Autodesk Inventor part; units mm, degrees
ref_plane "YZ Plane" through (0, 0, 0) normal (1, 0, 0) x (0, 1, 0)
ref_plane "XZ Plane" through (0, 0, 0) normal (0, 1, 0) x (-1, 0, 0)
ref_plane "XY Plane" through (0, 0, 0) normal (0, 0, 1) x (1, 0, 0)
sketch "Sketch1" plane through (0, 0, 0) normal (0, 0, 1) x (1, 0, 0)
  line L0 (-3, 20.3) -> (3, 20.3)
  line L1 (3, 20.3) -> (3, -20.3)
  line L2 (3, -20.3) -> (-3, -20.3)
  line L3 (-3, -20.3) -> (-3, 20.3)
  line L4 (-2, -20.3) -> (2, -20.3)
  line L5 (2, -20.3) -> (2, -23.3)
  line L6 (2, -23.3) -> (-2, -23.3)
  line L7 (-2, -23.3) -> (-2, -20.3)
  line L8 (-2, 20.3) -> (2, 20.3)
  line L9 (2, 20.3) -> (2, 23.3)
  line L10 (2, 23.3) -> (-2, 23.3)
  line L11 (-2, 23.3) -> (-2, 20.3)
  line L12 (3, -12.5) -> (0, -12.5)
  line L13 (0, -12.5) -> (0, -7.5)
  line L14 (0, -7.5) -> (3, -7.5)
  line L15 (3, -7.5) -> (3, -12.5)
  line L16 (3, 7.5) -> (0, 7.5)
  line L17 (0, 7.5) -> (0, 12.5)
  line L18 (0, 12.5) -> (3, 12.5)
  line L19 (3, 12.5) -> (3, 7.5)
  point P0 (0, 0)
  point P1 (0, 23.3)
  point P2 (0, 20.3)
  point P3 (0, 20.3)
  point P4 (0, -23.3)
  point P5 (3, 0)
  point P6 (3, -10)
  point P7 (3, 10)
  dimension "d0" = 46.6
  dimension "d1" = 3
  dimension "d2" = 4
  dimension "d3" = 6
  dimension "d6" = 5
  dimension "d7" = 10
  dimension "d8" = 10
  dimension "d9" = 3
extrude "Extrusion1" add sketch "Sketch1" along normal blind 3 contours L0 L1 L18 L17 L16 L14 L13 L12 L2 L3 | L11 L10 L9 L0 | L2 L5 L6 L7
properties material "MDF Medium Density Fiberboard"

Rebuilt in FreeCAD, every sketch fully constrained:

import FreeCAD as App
import Part
import Sketcher

V = App.Vector

doc = App.newDocument("Part")
body = doc.addObject("PartDesign::Body", "Body")

# Sketch on XY plane
sketch1 = doc.addObject("Sketcher::SketchObject", "Sketch")
body.addObject(sketch1)
sketch1.AttachmentSupport = (doc.XY_Plane, [""])
sketch1.MapMode = "FlatFace"
sketch1.addGeometry([
    Part.LineSegment(V(-2, 20.3, 0), V(-3, 20.3, 0)),  # 0
    Part.LineSegment(V(-3, 20.3, 0), V(-3, -20.3, 0)),  # 1
    Part.LineSegment(V(-3, -20.3, 0), V(-2, -20.3, 0)),  # 2
    Part.LineSegment(V(-2, -20.3, 0), V(-2, -23.3, 0)),  # 3
    Part.LineSegment(V(-2, -23.3, 0), V(2, -23.3, 0)),  # 4
    Part.LineSegment(V(2, -23.3, 0), V(2, -20.3, 0)),  # 5
    Part.LineSegment(V(2, -20.3, 0), V(3, -20.3, 0)),  # 6
    Part.LineSegment(V(3, -20.3, 0), V(3, -12.5, 0)),  # 7
    Part.LineSegment(V(3, -12.5, 0), V(0, -12.5, 0)),  # 8
    Part.LineSegment(V(0, -12.5, 0), V(0, -7.5, 0)),  # 9
    Part.LineSegment(V(0, -7.5, 0), V(3, -7.5, 0)),  # 10
    Part.LineSegment(V(3, -7.5, 0), V(3, 7.5, 0)),  # 11
    Part.LineSegment(V(3, 7.5, 0), V(0, 7.5, 0)),  # 12
    Part.LineSegment(V(0, 7.5, 0), V(0, 12.5, 0)),  # 13
    Part.LineSegment(V(0, 12.5, 0), V(3, 12.5, 0)),  # 14
    Part.LineSegment(V(3, 12.5, 0), V(3, 20.3, 0)),  # 15
    Part.LineSegment(V(3, 20.3, 0), V(2, 20.3, 0)),  # 16
    Part.LineSegment(V(2, 20.3, 0), V(2, 23.3, 0)),  # 17
    Part.LineSegment(V(2, 23.3, 0), V(-2, 23.3, 0)),  # 18
    Part.LineSegment(V(-2, 23.3, 0), V(-2, 20.3, 0)),  # 19
], False)
sketch1.addConstraint([
    Sketcher.Constraint("Coincident", 0, 2, 1, 1),
    Sketcher.Constraint("Coincident", 1, 2, 2, 1),
    Sketcher.Constraint("Coincident", 2, 2, 3, 1),
    Sketcher.Constraint("Coincident", 3, 2, 4, 1),
    Sketcher.Constraint("Coincident", 4, 2, 5, 1),
    Sketcher.Constraint("Coincident", 5, 2, 6, 1),
    Sketcher.Constraint("Coincident", 6, 2, 7, 1),
    Sketcher.Constraint("Coincident", 7, 2, 8, 1),
    Sketcher.Constraint("Coincident", 8, 2, 9, 1),
    Sketcher.Constraint("Coincident", 9, 2, 10, 1),
    Sketcher.Constraint("Coincident", 10, 2, 11, 1),
    Sketcher.Constraint("Coincident", 11, 2, 12, 1),
    Sketcher.Constraint("Coincident", 12, 2, 13, 1),
    Sketcher.Constraint("Coincident", 13, 2, 14, 1),
    Sketcher.Constraint("Coincident", 14, 2, 15, 1),
    Sketcher.Constraint("Coincident", 15, 2, 16, 1),
    Sketcher.Constraint("Coincident", 16, 2, 17, 1),
    Sketcher.Constraint("Coincident", 17, 2, 18, 1),
    Sketcher.Constraint("Coincident", 18, 2, 19, 1),
    Sketcher.Constraint("Coincident", 19, 2, 0, 1),
    Sketcher.Constraint("Horizontal", 0),
    Sketcher.Constraint("Vertical", 1),
    Sketcher.Constraint("Horizontal", 2),
    Sketcher.Constraint("Vertical", 3),
    Sketcher.Constraint("Horizontal", 4),
    Sketcher.Constraint("Vertical", 5),
    Sketcher.Constraint("Horizontal", 6),
    Sketcher.Constraint("Vertical", 7),
    Sketcher.Constraint("Horizontal", 8),
    Sketcher.Constraint("Vertical", 9),
    Sketcher.Constraint("Horizontal", 10),
    Sketcher.Constraint("Vertical", 11),
    Sketcher.Constraint("Horizontal", 12),
    Sketcher.Constraint("Vertical", 13),
    Sketcher.Constraint("Horizontal", 14),
    Sketcher.Constraint("Vertical", 15),
    Sketcher.Constraint("Horizontal", 16),
    Sketcher.Constraint("Vertical", 17),
    Sketcher.Constraint("Horizontal", 18),
    Sketcher.Constraint("Vertical", 19),
    Sketcher.Constraint("Symmetric", 0, 2, 6, 2, -1, 1),
    Sketcher.Constraint("Symmetric", 9, 2, 12, 2, -1, 1),
    Sketcher.Constraint("Symmetric", 1, 2, 15, 2, -1, 1),
    Sketcher.Constraint("Symmetric", 3, 2, 17, 2, -1, 1),
    Sketcher.Constraint("Symmetric", 2, 2, 5, 2, -2),
    Sketcher.Constraint("Symmetric", 8, 2, 13, 2, -1),
    Sketcher.Constraint("Vertical", 7, 2, 10, 2),
    Sketcher.Constraint("Vertical", 3, 2, 18, 2),
    Sketcher.Constraint("Equal", 14, 3),
    Sketcher.Constraint("DistanceX", 4, 1, 4, 2, 4.0),
    Sketcher.Constraint("DistanceX", 8, 2, 8, 1, 3.0),
    Sketcher.Constraint("DistanceY", 9, 1, 9, 2, 5.0),
    Sketcher.Constraint("DistanceY", 11, 1, 11, 2, 15.0),
    Sketcher.Constraint("DistanceY", 1, 2, 1, 1, 40.6),
])
pad1 = doc.addObject("PartDesign::Pad", "Pad")
body.addObject(pad1)
pad1.Profile = sketch1
pad1.Length = 3

doc.recompute()
